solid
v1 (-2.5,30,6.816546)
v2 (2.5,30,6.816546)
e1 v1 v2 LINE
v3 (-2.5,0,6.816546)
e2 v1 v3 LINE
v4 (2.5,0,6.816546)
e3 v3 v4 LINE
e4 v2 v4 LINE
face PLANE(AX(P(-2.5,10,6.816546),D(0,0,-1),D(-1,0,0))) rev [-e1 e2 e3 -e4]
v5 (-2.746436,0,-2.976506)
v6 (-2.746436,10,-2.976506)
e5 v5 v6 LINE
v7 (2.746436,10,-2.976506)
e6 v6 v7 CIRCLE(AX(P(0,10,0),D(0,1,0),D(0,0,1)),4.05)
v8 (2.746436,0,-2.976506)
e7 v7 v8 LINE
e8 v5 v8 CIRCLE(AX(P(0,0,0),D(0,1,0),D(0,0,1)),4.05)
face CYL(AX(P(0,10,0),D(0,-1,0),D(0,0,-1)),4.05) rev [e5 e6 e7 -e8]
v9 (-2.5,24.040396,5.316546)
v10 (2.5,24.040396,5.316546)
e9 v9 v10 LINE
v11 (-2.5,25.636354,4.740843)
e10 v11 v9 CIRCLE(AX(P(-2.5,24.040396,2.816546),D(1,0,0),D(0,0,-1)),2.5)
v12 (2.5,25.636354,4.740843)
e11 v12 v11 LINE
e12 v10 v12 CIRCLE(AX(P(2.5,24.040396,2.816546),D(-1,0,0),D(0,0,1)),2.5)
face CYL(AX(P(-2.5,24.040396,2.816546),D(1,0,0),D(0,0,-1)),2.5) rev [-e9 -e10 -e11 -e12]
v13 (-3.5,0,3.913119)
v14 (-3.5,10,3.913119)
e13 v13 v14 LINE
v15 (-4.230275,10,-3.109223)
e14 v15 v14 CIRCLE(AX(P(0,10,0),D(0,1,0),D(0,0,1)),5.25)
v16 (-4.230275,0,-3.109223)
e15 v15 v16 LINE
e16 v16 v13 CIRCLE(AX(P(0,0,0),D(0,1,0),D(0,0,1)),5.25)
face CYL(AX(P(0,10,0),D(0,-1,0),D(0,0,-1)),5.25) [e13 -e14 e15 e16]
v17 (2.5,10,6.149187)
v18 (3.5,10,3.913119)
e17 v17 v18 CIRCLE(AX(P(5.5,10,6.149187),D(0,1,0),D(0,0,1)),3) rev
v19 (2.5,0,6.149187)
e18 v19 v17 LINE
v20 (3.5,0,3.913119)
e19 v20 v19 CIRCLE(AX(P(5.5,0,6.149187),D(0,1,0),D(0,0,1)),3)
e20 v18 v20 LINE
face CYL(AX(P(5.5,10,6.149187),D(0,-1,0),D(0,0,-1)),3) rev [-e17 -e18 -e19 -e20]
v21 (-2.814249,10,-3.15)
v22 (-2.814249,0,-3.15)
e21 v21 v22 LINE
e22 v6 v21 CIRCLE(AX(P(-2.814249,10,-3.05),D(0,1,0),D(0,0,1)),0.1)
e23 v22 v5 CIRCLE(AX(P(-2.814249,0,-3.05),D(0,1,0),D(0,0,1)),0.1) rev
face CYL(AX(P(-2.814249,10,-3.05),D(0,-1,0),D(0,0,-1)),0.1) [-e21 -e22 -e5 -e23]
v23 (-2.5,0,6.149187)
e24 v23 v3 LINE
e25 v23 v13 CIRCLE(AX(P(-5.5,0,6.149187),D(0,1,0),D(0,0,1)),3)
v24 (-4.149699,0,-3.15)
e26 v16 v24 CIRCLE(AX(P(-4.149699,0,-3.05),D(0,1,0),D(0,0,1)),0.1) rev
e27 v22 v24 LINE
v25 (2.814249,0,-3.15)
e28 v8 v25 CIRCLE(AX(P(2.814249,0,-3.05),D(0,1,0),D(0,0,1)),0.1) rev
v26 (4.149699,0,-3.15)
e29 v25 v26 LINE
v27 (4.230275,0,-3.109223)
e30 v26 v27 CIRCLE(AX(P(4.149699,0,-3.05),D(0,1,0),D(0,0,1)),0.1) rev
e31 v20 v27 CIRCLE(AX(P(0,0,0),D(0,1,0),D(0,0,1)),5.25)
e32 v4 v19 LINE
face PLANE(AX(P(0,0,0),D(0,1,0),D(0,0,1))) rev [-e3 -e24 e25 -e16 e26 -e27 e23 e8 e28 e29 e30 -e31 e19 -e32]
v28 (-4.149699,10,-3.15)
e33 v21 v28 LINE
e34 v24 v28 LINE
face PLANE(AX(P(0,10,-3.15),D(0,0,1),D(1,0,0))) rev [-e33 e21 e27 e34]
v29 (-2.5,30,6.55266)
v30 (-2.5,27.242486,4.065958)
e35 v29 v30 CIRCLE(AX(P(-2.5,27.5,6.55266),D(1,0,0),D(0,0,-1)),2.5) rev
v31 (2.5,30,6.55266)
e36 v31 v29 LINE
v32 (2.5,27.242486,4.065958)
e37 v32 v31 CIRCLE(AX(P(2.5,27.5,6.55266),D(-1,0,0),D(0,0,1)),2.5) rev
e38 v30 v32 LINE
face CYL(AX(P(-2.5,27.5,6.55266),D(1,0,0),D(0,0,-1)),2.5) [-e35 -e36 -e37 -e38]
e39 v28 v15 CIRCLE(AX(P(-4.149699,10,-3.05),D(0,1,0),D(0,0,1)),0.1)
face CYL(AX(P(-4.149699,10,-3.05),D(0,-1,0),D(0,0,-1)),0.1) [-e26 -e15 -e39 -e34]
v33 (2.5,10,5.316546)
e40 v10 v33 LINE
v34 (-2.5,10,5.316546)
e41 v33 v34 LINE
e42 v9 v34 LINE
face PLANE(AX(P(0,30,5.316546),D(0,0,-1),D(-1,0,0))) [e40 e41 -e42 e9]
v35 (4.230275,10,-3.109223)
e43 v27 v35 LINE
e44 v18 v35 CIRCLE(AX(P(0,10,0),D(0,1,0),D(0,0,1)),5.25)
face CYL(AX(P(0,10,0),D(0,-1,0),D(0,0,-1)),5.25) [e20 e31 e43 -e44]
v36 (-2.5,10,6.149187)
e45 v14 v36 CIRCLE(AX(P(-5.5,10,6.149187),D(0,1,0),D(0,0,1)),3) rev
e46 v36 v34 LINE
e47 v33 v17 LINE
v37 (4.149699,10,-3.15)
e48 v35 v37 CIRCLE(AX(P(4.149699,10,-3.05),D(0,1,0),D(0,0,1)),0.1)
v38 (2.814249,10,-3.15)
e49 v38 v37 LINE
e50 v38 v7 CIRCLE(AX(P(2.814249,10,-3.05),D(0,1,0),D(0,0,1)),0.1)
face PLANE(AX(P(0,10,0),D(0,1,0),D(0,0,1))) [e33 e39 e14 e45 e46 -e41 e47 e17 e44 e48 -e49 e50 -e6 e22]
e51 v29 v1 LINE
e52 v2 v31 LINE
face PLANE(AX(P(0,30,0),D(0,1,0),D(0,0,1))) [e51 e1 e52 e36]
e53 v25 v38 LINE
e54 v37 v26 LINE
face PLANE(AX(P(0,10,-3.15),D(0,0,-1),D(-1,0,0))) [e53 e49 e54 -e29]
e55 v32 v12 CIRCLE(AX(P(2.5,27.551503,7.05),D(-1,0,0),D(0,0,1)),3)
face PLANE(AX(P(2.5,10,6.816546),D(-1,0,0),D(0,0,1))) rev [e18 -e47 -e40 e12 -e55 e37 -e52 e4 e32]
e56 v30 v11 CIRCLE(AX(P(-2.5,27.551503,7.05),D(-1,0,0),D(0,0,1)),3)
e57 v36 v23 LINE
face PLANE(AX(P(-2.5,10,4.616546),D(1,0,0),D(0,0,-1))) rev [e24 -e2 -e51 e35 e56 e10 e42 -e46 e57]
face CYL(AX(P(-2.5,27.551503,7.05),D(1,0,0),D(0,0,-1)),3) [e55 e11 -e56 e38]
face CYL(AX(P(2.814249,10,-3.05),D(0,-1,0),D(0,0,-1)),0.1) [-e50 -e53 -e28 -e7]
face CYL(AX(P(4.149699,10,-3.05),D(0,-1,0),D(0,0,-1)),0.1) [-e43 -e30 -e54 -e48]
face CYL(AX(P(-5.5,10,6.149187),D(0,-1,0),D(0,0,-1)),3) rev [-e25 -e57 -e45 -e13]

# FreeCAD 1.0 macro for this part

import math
import FreeCAD as App
import Part
import Sketcher
from FreeCAD import Vector


def edges_at(feature, points):
    """Names of the edges that pass closest to the given points."""
    edges = feature.Shape.Edges
    near = lambda p: min(range(len(edges)), key=lambda i: edges[i].distToShape(Part.Vertex(*p))[0])
    return sorted({f"Edge{near(p) + 1}" for p in points})

doc = App.newDocument("Part")
body = doc.addObject("PartDesign::Body", "Body")

# Sketch on XZ plane
sketch1 = doc.addObject("Sketcher::SketchObject", "Sketch")
body.addObject(sketch1)
sketch1.AttachmentSupport = (doc.XZ_Plane, [""])
sketch1.MapMode = "FlatFace"
sketch1.addGeometry(Part.ArcOfCircle(Part.Circle(Vector(0, 0, 0), Vector(0, 0, 1), 4), math.radians(-51), math.radians(231)), False)
sketch1.addGeometry(Part.LineSegment(Vector(-2.5, -3.1, 0), Vector(-4.2, -3.1, 0)), False)
sketch1.addGeometry(Part.ArcOfCircle(Part.Circle(Vector(0, 0, 0), Vector(0, 0, 1), 5.2), math.radians(118), math.radians(217)), False)
sketch1.addGeometry(Part.LineSegment(Vector(-2.5, 4.6, 0), Vector(-2.5, 6.8, 0)), False)
sketch1.addGeometry(Part.LineSegment(Vector(-2.5, 6.8, 0), Vector(2.5, 6.8, 0)), False)
sketch1.addGeometry(Part.LineSegment(Vector(2.5, 6.8, 0), Vector(2.5, 4.6, 0)), False)
sketch1.addGeometry(Part.ArcOfCircle(Part.Circle(Vector(0, 0, 0), Vector(0, 0, 1), 5.2), math.radians(-37), math.radians(62)), False)
sketch1.addGeometry(Part.LineSegment(Vector(4.2, -3.1, 0), Vector(2.5, -3.1, 0)), False)
sketch1.addConstraint(Sketcher.Constraint("Coincident", 0, 2, 1, 1))
sketch1.addConstraint(Sketcher.Constraint("Coincident", 1, 2, 2, 2))
sketch1.addConstraint(Sketcher.Constraint("Coincident", 2, 1, 3, 1))
sketch1.addConstraint(Sketcher.Constraint("Coincident", 3, 2, 4, 1))
sketch1.addConstraint(Sketcher.Constraint("Coincident", 4, 2, 5, 1))
sketch1.addConstraint(Sketcher.Constraint("Coincident", 5, 2, 6, 2))
sketch1.addConstraint(Sketcher.Constraint("Coincident", 6, 1, 7, 1))
sketch1.addConstraint(Sketcher.Constraint("Coincident", 7, 2, 0, 1))
sketch1.addConstraint(Sketcher.Constraint("Horizontal", 1))
sketch1.addConstraint(Sketcher.Constraint("Vertical", 3))
sketch1.addConstraint(Sketcher.Constraint("Horizontal", 4))
sketch1.addConstraint(Sketcher.Constraint("Vertical", 5))
sketch1.addConstraint(Sketcher.Constraint("Horizontal", 7))
sketch1.addConstraint(Sketcher.Constraint("Coincident", 0, 3, -1, 1))
sketch1.addConstraint(Sketcher.Constraint("Coincident", 2, 3, -1, 1))
sketch1.addConstraint(Sketcher.Constraint("Coincident", 6, 3, -1, 1))
sketch1.addConstraint(Sketcher.Constraint("Equal", 2, 6))
sketch1.addConstraint(Sketcher.Constraint("Horizontal", 2, 1, 5, 2))
sketch1.addConstraint(Sketcher.Constraint("Horizontal", 1, 2, 6, 1))
sketch1.addConstraint(Sketcher.Constraint("DistanceX", 4, 1, 4, 2, 5.0))
sketch1.addConstraint(Sketcher.Constraint("Radius", 0, 4.05))
sketch1.addConstraint(Sketcher.Constraint("Radius", 2, 5.25))
sketch1.addConstraint(Sketcher.Constraint("DistanceY", 3, 1, 3, 2, 2.2))
sketch1.addConstraint(Sketcher.Constraint("DistanceX", 1, 2, -1, 1, 4.2))
pad1 = doc.addObject("PartDesign::Pad", "Pad")
body.addObject(pad1)
pad1.Profile = sketch1
pad1.Length = 10
pad1.Reversed = True
doc.recompute()

fillet = doc.addObject("PartDesign::Fillet", "Fillet")
body.addObject(fillet)
fillet.Base = (pad1, edges_at(pad1, [(-2.5, 5, 4.617), (2.5, 5, 4.617)]))
fillet.Radius = 3

# Sketch on XZ plane
sketch2 = doc.addObject("Sketcher::SketchObject", "Sketch001")
body.addObject(sketch2)
sketch2.AttachmentSupport = (doc.XZ_Plane, [""])
sketch2.MapMode = "FlatFace"
sketch2.addGeometry(Part.LineSegment(Vector(-2.5, 5.3, 0), Vector(-2.5, 6.8, 0)), False)
sketch2.addGeometry(Part.LineSegment(Vector(-2.5, 6.8, 0), Vector(2.5, 6.8, 0)), False)
sketch2.addGeometry(Part.LineSegment(Vector(2.5, 6.8, 0), Vector(2.5, 5.3, 0)), False)
sketch2.addGeometry(Part.LineSegment(Vector(2.5, 5.3, 0), Vector(-2.5, 5.3, 0)), False)
sketch2.addConstraint(Sketcher.Constraint("Coincident", 0, 2, 1, 1))
sketch2.addConstraint(Sketcher.Constraint("Coincident", 1, 2, 2, 1))
sketch2.addConstraint(Sketcher.Constraint("Coincident", 2, 2, 3, 1))
sketch2.addConstraint(Sketcher.Constraint("Coincident", 3, 2, 0, 1))
sketch2.addConstraint(Sketcher.Constraint("Vertical", 0))
sketch2.addConstraint(Sketcher.Constraint("Horizontal", 1))
sketch2.addConstraint(Sketcher.Constraint("Vertical", 2))
sketch2.addConstraint(Sketcher.Constraint("Horizontal", 3))
sketch2.addConstraint(Sketcher.Constraint("DistanceX", 1, 1, 1, 2, 5.0))
sketch2.addConstraint(Sketcher.Constraint("DistanceY", 0, 1, 0, 2, 1.5))
sketch2.addConstraint(Sketcher.Constraint("DistanceX", 0, 2, -1, 1, 2.5))
sketch2.addConstraint(Sketcher.Constraint("DistanceY", -1, 1, 0, 2, 6.816546))
pad2 = doc.addObject("PartDesign::Pad", "Pad001")
body.addObject(pad2)
pad2.Profile = sketch2
pad2.Length = 30
pad2.Reversed = True

# Sketch on YZ plane
sketch3 = doc.addObject("Sketcher::SketchObject", "Sketch002")
body.addObject(sketch3)
sketch3.AttachmentSupport = (doc.YZ_Plane, [""])
sketch3.MapMode = "FlatFace"
sketch3.addGeometry(Part.LineSegment(Vector(25.1, 5.3, 0), Vector(30, 5.3, 0)), False)
sketch3.addGeometry(Part.ArcOfCircle(Part.Circle(Vector(27.6, 7, 0), Vector(0, 0, 1), 3), math.radians(-145), math.radians(-35)), False)
sketch3.addConstraint(Sketcher.Constraint("Coincident", 0, 1, 1, 1))
sketch3.addConstraint(Sketcher.Constraint("Coincident", 1, 2, 0, 2))
sketch3.addConstraint(Sketcher.Constraint("Horizontal", 0))
sketch3.addConstraint(Sketcher.Constraint("Radius", 1, 3.0))
sketch3.addConstraint(Sketcher.Constraint("DistanceX", -1, 1, 1, 2, 30.0))
sketch3.addConstraint(Sketcher.Constraint("DistanceY", -1, 1, 1, 3, 7.05))
sketch3.addConstraint(Sketcher.Constraint("DistanceX", 0, 1, 0, 2, 4.896994))
pad3 = doc.addObject("PartDesign::Pad", "Pad002")
body.addObject(pad3)
pad3.Profile = sketch3
pad3.Length = 5
pad3.Midplane = True
doc.recompute()

fillet2 = doc.addObject("PartDesign::Fillet", "Fillet001")
body.addObject(fillet2)
fillet2.Base = (pad3, edges_at(pad3, [(0, 30, 5.317), (0, 25.103, 5.317)]))
fillet2.Radius = 2.5
doc.recompute()

fillet3 = doc.addObject("PartDesign::Fillet", "Fillet002")
body.addObject(fillet3)
fillet3.Base = (fillet2, edges_at(fillet2, [
    (-4.2, 5, -3.15),
    (-2.546, 5, -3.15),
    (2.546, 5, -3.15),
    (4.2, 5, -3.15),
]))
fillet3.Radius = 0.1

doc.recompute()
